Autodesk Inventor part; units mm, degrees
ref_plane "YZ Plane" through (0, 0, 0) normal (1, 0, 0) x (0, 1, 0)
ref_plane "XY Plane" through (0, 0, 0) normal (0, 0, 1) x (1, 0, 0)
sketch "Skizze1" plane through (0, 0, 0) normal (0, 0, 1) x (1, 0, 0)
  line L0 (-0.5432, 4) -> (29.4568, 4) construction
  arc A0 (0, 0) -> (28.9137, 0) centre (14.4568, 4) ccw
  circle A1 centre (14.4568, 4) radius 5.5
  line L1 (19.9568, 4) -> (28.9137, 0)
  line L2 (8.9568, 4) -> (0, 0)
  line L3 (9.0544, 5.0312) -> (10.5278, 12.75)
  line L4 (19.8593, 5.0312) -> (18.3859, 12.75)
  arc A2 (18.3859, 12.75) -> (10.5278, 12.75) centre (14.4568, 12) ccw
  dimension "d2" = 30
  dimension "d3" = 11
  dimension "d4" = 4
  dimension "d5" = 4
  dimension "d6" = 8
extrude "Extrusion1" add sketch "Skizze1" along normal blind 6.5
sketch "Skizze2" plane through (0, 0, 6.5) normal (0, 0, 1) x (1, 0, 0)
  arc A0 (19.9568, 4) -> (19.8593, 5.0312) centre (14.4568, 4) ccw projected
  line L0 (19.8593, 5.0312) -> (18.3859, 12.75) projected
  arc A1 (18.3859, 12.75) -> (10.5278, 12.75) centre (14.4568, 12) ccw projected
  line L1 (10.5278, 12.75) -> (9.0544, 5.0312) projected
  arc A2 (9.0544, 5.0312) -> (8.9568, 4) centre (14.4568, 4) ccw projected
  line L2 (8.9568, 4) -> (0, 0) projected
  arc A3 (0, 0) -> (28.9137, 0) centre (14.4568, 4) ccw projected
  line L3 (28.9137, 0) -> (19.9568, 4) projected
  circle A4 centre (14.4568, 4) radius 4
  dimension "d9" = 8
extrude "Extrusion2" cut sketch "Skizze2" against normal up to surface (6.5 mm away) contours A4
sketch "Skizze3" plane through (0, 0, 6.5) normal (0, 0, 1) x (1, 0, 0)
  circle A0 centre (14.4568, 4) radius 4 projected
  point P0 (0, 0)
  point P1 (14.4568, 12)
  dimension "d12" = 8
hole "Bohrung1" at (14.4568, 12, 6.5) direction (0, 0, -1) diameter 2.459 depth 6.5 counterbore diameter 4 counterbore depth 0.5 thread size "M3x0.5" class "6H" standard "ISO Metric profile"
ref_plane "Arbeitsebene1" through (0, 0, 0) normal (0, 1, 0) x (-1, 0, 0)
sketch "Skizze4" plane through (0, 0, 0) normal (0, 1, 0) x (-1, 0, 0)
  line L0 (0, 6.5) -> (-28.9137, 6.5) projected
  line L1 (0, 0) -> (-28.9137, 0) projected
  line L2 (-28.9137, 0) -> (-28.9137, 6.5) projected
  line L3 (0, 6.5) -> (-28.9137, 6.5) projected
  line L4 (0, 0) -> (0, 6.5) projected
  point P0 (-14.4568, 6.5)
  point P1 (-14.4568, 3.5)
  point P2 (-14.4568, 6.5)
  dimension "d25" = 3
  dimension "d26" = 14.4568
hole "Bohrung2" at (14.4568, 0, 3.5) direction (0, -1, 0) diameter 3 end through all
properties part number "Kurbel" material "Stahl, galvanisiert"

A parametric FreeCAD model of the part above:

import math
import FreeCAD as App
import Part
import Sketcher
from FreeCAD import Vector
Q = App.Units.Quantity

doc = App.newDocument("Part")
params = doc.addObject("Spreadsheet::Sheet", "Params")
for row, (alias, value) in enumerate([
    ("sketch1_radius", "15 mm"),
    ("sketch1_radius2", "4 mm"),
    ("sketch1_radius3", "5.5 mm"),
    ("pad1_length", "6.5 mm"),
    ("sketch2_diameter", "8 mm"),
    ("pocket1_length", "6.5 mm"),
    ("hole_diameter", "2.459 mm"),
    ("hole_depth", "6.5 mm"),
    ("hole_cbore_diameter", "4 mm"),
    ("hole_cbore_depth", "0.5 mm"),
    ("sketch4_diameter", "3 mm"),
    ("hole2_diameter", "3 mm"),
], start=1):
    params.set(f"A{row}", alias)
    params.set(f"B{row}", "=" + value)
    params.setAlias(f"B{row}", alias)

body = doc.addObject("PartDesign::Body", "Body")

sketch1 = doc.addObject("Sketcher::SketchObject", "Sketch")
body.addObject(sketch1)
sketch1.AttachmentSupport = (doc.XY_Plane, [""])
sketch1.MapMode = "FlatFace"
sketch1.addGeometry([
    Part.LineSegment(Vector(9, 4, 0), Vector(0, 0, 0)),
    Part.ArcOfCircle(Part.Circle(Vector(14.5, 4, 0), Vector(0, 0, 1), 15), math.radians(-165), math.radians(-15)),
    Part.LineSegment(Vector(28.9, 0, 0), Vector(20, 4, 0)),
    Part.ArcOfCircle(Part.Circle(Vector(14.5, 4, 0), Vector(0, 0, 1), 5.5), math.radians(0), math.radians(10.81)),
    Part.LineSegment(Vector(19.9, 5, 0), Vector(18.4, 12.8, 0)),
    Part.ArcOfCircle(Part.Circle(Vector(14.5, 12, 0), Vector(0, 0, 1), 4), math.radians(11), math.radians(169)),
    Part.LineSegment(Vector(10.5, 12.8, 0), Vector(9.1, 5, 0)),
    Part.ArcOfCircle(Part.Circle(Vector(14.5, 4, 0), Vector(0, 0, 1), 5.5), math.radians(169.19), math.radians(180)),
], False)
sketch1.addConstraint([
    Sketcher.Constraint("Coincident", 0, 2, 1, 1),
    Sketcher.Constraint("Coincident", 1, 2, 2, 1),
    Sketcher.Constraint("Coincident", 2, 2, 3, 1),
    Sketcher.Constraint("Tangent", 3, 2, 4, 1),
    Sketcher.Constraint("Tangent", 4, 2, 5, 1),
    Sketcher.Constraint("Tangent", 5, 2, 6, 1),
    Sketcher.Constraint("Tangent", 6, 2, 7, 1),
    Sketcher.Constraint("Coincident", 7, 2, 0, 1),
    Sketcher.Constraint("Coincident", 0, 2, -1, 1),
    Sketcher.Constraint("Coincident", 3, 3, 1, 3),
    Sketcher.Constraint("Coincident", 7, 3, 1, 3),
    Sketcher.Constraint("Equal", 3, 7),
    Sketcher.Constraint("PointOnObject", 1, 2, -1),
    Sketcher.Constraint("Horizontal", 7, 3, 2, 2),
    Sketcher.Constraint("Horizontal", 4, 2, 5, 2),
    Sketcher.Constraint("Horizontal", 2, 2, 7, 2),
    Sketcher.Constraint("Radius", 1, Q("15 mm")),
    Sketcher.Constraint("Radius", 5, Q("4 mm")),
    Sketcher.Constraint("Radius", 3, Q("5.5 mm")),
    Sketcher.Constraint("DistanceY", -1, 1, 1, 3, Q("4 mm")),
    Sketcher.Constraint("DistanceY", 1, 3, 5, 3, Q("8 mm")),
])
sketch1.setExpression("Constraints[16]", "Params.sketch1_radius")
sketch1.setExpression("Constraints[17]", "Params.sketch1_radius2")
sketch1.setExpression("Constraints[18]", "Params.sketch1_radius3")
pad1 = doc.addObject("PartDesign::Pad", "Pad")
body.addObject(pad1)
pad1.Profile = sketch1
pad1.setExpression("Length", "Params.pad1_length")

sketch2 = doc.addObject("Sketcher::SketchObject", "Sketch001")
body.addObject(sketch2)
sketch2.AttachmentSupport = (doc.XY_Plane, [""])
sketch2.MapMode = "FlatFace"
sketch2.AttachmentOffset = App.Placement(Vector(0, 0, 6.5), App.Rotation())
sketch2.addGeometry(Part.Circle(Vector(14.5, 4, 0), Vector(0, 0, 1), 4), False)
sketch2.addConstraint([
    Sketcher.Constraint("Diameter", 0, Q("8 mm")),
    Sketcher.Constraint("DistanceY", -1, 1, 0, 3, Q("4 mm")),
    Sketcher.Constraint("DistanceX", -1, 1, 0, 3, Q("14.4568 mm")),
])
sketch2.setExpression("Constraints[0]", "Params.sketch2_diameter")
pocket1 = doc.addObject("PartDesign::Pocket", "Pocket")
body.addObject(pocket1)
pocket1.Profile = sketch2
pocket1.setExpression("Length", "Params.pocket1_length")

sketch3 = doc.addObject("Sketcher::SketchObject", "Sketch002")
body.addObject(sketch3)
sketch3.AttachmentSupport = (doc.XY_Plane, [""])
sketch3.MapMode = "FlatFace"
sketch3.AttachmentOffset = App.Placement(Vector(0, 0, 6.5), App.Rotation())
sketch3.addGeometry(Part.Circle(Vector(14.5, 12, 0), Vector(0, 0, 1), 1.2), False)
sketch3.addConstraint([
    Sketcher.Constraint("Diameter", 0, Q("2.459 mm")),
    Sketcher.Constraint("DistanceY", -1, 1, 0, 3, Q("12 mm")),
    Sketcher.Constraint("DistanceX", -1, 1, 0, 3, Q("14.4568 mm")),
])
doc.recompute()
hole = doc.addObject("PartDesign::Hole", "Hole")
body.addObject(hole)
hole.Profile = sketch3
hole.ThreadType = "None"
hole.setExpression("Diameter", "Params.hole_diameter")
hole.DepthType = "Dimension"
hole.setExpression("Depth", "Params.hole_depth")
hole.DrillPoint = "Flat"
hole.HoleCutType = "Counterbore"
hole.setExpression("HoleCutDiameter", "Params.hole_cbore_diameter")
hole.setExpression("HoleCutDepth", "Params.hole_cbore_depth")

sketch4 = doc.addObject("Sketcher::SketchObject", "Sketch003")
body.addObject(sketch4)
sketch4.AttachmentSupport = (doc.XZ_Plane, [""])
sketch4.MapMode = "FlatFace"
sketch4.addGeometry(Part.Circle(Vector(14.5, 3.5, 0), Vector(0, 0, 1), 1.5), False)
sketch4.addConstraint([
    Sketcher.Constraint("Diameter", 0, Q("3 mm")),
    Sketcher.Constraint("DistanceY", -1, 1, 0, 3, Q("3.5 mm")),
    Sketcher.Constraint("DistanceX", -1, 1, 0, 3, Q("14.4568 mm")),
])
sketch4.setExpression("Constraints[0]", "Params.sketch4_diameter")
doc.recompute()
hole2 = doc.addObject("PartDesign::Hole", "Hole001")
body.addObject(hole2)
hole2.Profile = sketch4
hole2.ThreadType = "None"
hole2.setExpression("Diameter", "Params.hole2_diameter")
hole2.DepthType = "ThroughAll"
hole2.Reversed = True

doc.recompute()
